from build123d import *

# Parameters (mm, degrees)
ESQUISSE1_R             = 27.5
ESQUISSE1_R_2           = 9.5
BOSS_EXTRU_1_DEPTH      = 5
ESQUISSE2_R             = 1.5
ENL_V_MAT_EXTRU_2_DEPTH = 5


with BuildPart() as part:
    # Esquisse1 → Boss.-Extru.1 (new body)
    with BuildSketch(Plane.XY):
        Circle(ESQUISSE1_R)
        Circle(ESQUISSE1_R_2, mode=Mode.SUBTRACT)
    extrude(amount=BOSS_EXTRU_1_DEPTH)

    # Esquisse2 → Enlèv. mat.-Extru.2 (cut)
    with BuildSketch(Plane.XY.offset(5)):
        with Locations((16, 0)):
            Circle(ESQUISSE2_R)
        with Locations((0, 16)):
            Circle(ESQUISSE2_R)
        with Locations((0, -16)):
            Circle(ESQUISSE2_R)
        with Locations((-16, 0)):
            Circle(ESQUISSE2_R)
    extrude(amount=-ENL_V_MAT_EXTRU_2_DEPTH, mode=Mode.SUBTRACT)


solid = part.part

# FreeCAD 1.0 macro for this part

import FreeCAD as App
import Part
import Sketcher

doc = App.newDocument("Part")
body = doc.addObject("PartDesign::Body", "Body")

sketch1 = body.newObject("Sketcher::SketchObject", "Sketch")
sketch1.AttachmentSupport = (doc.getObject("XY_Plane"), [""])
sketch1.MapMode = "FlatFace"
sketch1.addGeometry([
    Part.Circle(App.Vector(0, 0, 0), App.Vector(0, 0, 1), 28),
    Part.Circle(App.Vector(0, 0, 0), App.Vector(0, 0, 1), 10),
], False)
sketch1.addConstraint([
    Sketcher.Constraint("Coincident", 0, 3, -1, 1),
    Sketcher.Constraint("Coincident", 1, 3, -1, 1),
    Sketcher.Constraint("Diameter", 0, 55.0),
    Sketcher.Constraint("Diameter", 1, 19.0),
])
pad1 = body.newObject("PartDesign::Pad", "Pad")
pad1.Profile = sketch1
pad1.Length = 5

sketch2 = body.newObject("Sketcher::SketchObject", "Sketch001")
sketch2.AttachmentSupport = (doc.getObject("XY_Plane"), [""])
sketch2.MapMode = "FlatFace"
sketch2.AttachmentOffset = App.Placement(App.Vector(0, 0, 5), App.Rotation())
sketch2.addGeometry([
    Part.Circle(App.Vector(16, 0, 0), App.Vector(0, 0, 1), 1.5),
    Part.Circle(App.Vector(0, 16, 0), App.Vector(0, 0, 1), 1.5),
    Part.Circle(App.Vector(0, -16, 0), App.Vector(0, 0, 1), 1.5),
    Part.Circle(App.Vector(-16, 0, 0), App.Vector(0, 0, 1), 1.5),
], False)
sketch2.addConstraint([
    Sketcher.Constraint("Equal", 0, 1),
    Sketcher.Constraint("Equal", 1, 2),
    Sketcher.Constraint("Equal", 2, 3),
    Sketcher.Constraint("Symmetric", 1, 3, 2, 3, -1, 1),
    Sketcher.Constraint("Symmetric", 0, 3, 3, 3, -1, 1),
    Sketcher.Constraint("PointOnObject", 0, 3, -1),
    Sketcher.Constraint("PointOnObject", 1, 3, -2),
    Sketcher.Constraint("Diameter", 0, 3.0),
    Sketcher.Constraint("DistanceX", -1, 1, 0, 3, 16.0),
    Sketcher.Constraint("DistanceY", -1, 1, 1, 3, 16.0),
])
pocket1 = body.newObject("PartDesign::Pocket", "Pocket")
pocket1.Profile = sketch2
pocket1.Length = 5

doc.recompute()
